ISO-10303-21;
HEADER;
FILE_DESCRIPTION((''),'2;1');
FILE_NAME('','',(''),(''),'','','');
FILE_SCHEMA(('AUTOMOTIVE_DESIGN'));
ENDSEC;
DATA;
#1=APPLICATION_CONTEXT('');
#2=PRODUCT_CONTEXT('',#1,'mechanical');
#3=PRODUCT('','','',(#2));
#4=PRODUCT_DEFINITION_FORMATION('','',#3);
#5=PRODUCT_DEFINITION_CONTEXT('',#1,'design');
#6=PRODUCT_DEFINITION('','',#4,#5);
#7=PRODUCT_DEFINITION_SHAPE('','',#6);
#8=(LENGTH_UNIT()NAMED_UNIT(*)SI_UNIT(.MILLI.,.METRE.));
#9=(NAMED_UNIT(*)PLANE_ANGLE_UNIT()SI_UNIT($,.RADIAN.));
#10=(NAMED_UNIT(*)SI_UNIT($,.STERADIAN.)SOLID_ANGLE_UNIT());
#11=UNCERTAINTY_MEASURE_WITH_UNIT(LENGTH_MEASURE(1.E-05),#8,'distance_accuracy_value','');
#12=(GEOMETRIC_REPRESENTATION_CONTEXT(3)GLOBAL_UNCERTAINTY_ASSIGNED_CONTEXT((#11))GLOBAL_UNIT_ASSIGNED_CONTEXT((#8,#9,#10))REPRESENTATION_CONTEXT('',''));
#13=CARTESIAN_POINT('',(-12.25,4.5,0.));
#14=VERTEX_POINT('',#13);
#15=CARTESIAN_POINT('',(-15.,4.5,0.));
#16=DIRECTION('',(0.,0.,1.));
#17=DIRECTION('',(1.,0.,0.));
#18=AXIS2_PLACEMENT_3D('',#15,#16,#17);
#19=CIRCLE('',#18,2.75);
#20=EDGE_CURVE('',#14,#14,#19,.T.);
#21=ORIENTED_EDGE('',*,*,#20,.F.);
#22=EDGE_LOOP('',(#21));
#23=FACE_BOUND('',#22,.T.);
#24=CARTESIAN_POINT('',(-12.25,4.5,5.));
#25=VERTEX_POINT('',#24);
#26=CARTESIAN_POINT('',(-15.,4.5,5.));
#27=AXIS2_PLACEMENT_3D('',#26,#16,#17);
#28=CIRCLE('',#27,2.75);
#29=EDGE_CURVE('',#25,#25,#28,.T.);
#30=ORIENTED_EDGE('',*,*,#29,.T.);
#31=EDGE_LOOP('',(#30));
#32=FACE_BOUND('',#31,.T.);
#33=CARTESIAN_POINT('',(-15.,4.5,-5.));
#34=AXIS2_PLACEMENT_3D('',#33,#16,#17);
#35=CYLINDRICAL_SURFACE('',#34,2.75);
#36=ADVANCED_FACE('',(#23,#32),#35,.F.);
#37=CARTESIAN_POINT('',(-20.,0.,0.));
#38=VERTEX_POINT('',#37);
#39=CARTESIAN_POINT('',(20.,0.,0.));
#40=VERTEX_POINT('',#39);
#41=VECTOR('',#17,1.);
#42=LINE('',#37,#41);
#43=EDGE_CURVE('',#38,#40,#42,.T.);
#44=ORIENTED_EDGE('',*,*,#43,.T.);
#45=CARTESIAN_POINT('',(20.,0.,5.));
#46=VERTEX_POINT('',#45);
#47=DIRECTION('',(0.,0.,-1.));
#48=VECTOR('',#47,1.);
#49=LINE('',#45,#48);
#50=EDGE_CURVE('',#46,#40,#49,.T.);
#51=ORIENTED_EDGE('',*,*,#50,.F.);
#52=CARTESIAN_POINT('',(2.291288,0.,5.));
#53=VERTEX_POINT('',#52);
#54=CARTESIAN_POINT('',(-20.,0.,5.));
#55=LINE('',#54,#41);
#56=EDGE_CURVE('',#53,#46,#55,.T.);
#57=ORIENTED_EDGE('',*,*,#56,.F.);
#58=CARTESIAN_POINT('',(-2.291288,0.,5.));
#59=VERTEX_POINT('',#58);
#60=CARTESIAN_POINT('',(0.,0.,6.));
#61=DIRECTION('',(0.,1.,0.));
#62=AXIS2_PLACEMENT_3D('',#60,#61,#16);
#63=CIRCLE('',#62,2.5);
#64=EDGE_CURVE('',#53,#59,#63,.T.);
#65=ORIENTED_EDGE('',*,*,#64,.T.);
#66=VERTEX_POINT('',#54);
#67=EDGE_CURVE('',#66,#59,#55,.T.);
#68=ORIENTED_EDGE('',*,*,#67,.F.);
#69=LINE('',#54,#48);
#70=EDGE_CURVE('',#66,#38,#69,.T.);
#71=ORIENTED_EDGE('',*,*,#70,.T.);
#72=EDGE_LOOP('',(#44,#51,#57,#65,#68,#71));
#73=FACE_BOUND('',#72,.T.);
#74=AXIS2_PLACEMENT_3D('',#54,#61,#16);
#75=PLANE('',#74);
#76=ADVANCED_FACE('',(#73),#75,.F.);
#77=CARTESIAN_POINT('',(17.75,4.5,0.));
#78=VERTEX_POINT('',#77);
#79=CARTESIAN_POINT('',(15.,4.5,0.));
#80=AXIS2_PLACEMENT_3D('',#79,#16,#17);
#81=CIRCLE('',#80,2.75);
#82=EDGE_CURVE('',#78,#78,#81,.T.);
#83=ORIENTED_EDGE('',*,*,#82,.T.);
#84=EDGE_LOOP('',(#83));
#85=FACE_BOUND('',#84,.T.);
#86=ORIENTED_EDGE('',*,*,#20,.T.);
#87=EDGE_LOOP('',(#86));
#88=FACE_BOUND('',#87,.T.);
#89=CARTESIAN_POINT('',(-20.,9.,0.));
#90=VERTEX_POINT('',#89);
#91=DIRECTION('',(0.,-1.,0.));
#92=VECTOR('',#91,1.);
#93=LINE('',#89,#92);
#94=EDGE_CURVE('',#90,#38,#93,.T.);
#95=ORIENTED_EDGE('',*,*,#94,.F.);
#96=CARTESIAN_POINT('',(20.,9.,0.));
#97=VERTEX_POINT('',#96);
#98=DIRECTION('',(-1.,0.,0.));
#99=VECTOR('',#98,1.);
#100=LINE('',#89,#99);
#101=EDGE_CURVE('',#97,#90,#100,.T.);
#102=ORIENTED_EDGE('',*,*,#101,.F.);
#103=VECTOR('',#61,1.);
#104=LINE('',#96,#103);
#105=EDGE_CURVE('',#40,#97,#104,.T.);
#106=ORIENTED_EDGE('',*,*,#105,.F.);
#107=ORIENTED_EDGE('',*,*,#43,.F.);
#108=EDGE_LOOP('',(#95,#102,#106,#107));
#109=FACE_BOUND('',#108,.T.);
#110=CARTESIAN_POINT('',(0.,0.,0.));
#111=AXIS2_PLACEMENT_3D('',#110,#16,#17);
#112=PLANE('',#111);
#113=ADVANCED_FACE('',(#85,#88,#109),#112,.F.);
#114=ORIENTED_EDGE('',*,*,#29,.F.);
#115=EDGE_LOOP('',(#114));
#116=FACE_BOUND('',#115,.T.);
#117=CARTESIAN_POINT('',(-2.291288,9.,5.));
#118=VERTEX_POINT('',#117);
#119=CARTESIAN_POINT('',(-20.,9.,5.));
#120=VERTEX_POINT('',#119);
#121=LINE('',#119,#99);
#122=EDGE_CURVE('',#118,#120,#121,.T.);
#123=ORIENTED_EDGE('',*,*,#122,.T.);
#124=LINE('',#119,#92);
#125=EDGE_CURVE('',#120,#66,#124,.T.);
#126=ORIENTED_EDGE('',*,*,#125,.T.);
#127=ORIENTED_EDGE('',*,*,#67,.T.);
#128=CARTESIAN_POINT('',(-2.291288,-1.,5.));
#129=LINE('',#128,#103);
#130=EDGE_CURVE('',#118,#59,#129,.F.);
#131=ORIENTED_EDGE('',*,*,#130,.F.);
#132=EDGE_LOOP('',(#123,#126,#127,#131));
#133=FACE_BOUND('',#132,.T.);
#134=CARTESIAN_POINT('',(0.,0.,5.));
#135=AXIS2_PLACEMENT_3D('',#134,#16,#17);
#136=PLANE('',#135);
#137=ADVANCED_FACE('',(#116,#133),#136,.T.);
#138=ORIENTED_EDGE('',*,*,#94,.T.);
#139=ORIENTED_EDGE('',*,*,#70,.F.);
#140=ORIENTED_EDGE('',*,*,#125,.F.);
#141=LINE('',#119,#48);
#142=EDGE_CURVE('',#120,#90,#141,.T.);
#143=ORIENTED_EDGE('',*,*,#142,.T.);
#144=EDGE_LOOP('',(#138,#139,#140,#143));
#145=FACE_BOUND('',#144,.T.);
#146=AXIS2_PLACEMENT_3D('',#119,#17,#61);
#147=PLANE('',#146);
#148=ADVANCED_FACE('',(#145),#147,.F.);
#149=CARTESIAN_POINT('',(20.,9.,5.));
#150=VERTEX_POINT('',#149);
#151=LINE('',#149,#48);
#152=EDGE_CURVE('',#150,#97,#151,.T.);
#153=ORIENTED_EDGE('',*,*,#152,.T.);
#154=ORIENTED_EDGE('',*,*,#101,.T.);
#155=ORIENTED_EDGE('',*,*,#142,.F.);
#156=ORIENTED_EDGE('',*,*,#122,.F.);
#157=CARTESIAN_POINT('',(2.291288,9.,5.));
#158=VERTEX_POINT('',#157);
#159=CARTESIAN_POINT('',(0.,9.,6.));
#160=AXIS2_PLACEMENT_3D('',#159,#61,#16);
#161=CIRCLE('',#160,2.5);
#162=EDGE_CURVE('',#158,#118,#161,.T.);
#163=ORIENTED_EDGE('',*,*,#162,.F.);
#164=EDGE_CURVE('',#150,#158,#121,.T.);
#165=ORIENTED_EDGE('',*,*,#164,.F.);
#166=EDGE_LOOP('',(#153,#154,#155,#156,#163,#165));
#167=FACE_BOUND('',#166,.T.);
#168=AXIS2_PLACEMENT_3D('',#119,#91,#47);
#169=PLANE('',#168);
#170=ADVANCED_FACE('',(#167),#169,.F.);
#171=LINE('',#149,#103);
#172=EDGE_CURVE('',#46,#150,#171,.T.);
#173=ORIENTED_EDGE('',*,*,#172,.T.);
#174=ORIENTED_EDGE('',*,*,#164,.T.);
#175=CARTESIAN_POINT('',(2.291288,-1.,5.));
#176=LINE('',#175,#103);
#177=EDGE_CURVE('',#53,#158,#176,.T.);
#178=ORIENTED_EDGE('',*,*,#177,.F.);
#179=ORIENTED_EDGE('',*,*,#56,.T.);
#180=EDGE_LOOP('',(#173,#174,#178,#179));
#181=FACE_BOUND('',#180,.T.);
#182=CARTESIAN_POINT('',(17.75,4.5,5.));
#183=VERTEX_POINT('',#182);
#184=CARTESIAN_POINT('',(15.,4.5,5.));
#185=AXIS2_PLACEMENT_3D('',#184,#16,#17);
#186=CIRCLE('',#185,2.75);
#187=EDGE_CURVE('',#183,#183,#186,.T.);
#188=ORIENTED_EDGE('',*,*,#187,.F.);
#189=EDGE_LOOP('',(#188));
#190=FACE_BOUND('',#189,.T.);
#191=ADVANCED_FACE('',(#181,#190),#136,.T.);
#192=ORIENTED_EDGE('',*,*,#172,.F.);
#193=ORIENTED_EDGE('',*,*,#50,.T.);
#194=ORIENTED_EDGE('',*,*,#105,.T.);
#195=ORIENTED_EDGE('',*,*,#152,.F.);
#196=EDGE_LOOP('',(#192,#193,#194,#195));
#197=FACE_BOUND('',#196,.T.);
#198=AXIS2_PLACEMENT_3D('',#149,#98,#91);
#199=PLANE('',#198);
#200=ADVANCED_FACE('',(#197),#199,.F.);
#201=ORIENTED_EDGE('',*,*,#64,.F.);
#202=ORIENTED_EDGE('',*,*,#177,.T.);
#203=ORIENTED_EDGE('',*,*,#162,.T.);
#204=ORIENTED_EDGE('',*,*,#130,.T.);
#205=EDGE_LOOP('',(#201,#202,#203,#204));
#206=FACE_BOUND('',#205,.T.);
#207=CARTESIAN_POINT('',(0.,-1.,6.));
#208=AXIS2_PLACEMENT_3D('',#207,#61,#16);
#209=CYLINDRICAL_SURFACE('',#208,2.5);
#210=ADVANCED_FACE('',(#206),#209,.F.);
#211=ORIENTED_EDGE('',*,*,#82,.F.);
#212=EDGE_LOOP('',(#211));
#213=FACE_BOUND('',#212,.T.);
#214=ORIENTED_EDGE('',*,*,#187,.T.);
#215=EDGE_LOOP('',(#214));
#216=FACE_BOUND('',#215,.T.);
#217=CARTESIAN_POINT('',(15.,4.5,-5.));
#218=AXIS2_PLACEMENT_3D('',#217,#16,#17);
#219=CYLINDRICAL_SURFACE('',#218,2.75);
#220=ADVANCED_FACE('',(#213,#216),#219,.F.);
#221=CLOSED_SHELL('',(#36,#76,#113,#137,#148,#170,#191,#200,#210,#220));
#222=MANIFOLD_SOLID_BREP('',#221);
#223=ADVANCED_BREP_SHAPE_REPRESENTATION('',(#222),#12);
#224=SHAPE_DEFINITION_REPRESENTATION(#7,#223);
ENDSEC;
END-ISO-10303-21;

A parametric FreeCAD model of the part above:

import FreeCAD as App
import Part
import Sketcher

doc = App.newDocument("Part")
params = doc.addObject("Spreadsheet::Sheet", "Params")
for row, (alias, value) in enumerate([
    ("sketch1_width", "40 mm"),
    ("sketch1_height", "9 mm"),
    ("pad1_length", "5 mm"),
    ("sketch2_diameter", "5.5 mm"),
    ("pocket1_length", "10 mm"),
    ("sketch3_diameter", "5 mm"),
    ("pocket2_length", "10 mm"),
], start=1):
    params.set(f"A{row}", alias)
    params.set(f"B{row}", "=" + value)
    params.setAlias(f"B{row}", alias)

body = doc.addObject("PartDesign::Body", "Body")

sketch1 = doc.addObject("Sketcher::SketchObject", "Sketch")
body.addObject(sketch1)
sketch1.AttachmentSupport = (doc.XY_Plane, [""])
sketch1.MapMode = "FlatFace"
sketch1.addGeometry(Part.LineSegment(App.Vector(-20, 9, 0), App.Vector(-20, 0, 0)), False)
sketch1.addGeometry(Part.LineSegment(App.Vector(-20, 0, 0), App.Vector(20, 0, 0)), False)
sketch1.addGeometry(Part.LineSegment(App.Vector(20, 0, 0), App.Vector(20, 9, 0)), False)
sketch1.addGeometry(Part.LineSegment(App.Vector(20, 9, 0), App.Vector(-20, 9, 0)), False)
sketch1.addConstraint(Sketcher.Constraint("Coincident", 0, 2, 1, 1))
sketch1.addConstraint(Sketcher.Constraint("Coincident", 1, 2, 2, 1))
sketch1.addConstraint(Sketcher.Constraint("Coincident", 2, 2, 3, 1))
sketch1.addConstraint(Sketcher.Constraint("Coincident", 3, 2, 0, 1))
sketch1.addConstraint(Sketcher.Constraint("Vertical", 0))
sketch1.addConstraint(Sketcher.Constraint("Horizontal", 1))
sketch1.addConstraint(Sketcher.Constraint("Vertical", 2))
sketch1.addConstraint(Sketcher.Constraint("Horizontal", 3))
sketch1.addConstraint(Sketcher.Constraint("Symmetric", 0, 2, 1, 2, -1, 1))
sketch1.addConstraint(Sketcher.Constraint("DistanceX", 1, 1, 1, 2, 40.0))
sketch1.addConstraint(Sketcher.Constraint("DistanceY", 0, 2, 0, 1, 9.0))
sketch1.setExpression("Constraints[9]", "Params.sketch1_width")
sketch1.setExpression("Constraints[10]", "Params.sketch1_height")
pad1 = doc.addObject("PartDesign::Pad", "Pad")
body.addObject(pad1)
pad1.Profile = sketch1
pad1.setExpression("Length", "Params.pad1_length")

sketch2 = doc.addObject("Sketcher::SketchObject", "Sketch001")
body.addObject(sketch2)
sketch2.AttachmentSupport = (doc.XY_Plane, [""])
sketch2.MapMode = "FlatFace"
sketch2.AttachmentOffset = App.Placement(App.Vector(0, 0, 5), App.Rotation())
sketch2.addGeometry(Part.Circle(App.Vector(15, 4.5, 0), App.Vector(0, 0, 1), 2.75), False)
sketch2.addGeometry(Part.Circle(App.Vector(-15, 4.5, 0), App.Vector(0, 0, 1), 2.75), False)
sketch2.addConstraint(Sketcher.Constraint("Equal", 0, 1))
sketch2.addConstraint(Sketcher.Constraint("Symmetric", 0, 3, 1, 3, -2))
sketch2.addConstraint(Sketcher.Constraint("Diameter", 0, 5.5))
sketch2.addConstraint(Sketcher.Constraint("DistanceX", -1, 1, 0, 3, 15.0))
sketch2.addConstraint(Sketcher.Constraint("DistanceY", -1, 1, 0, 3, 4.5))
sketch2.setExpression("Constraints[2]", "Params.sketch2_diameter")
pocket1 = doc.addObject("PartDesign::Pocket", "Pocket")
body.addObject(pocket1)
pocket1.Profile = sketch2
pocket1.setExpression("Length", "Params.pocket1_length")

sketch3 = doc.addObject("Sketcher::SketchObject", "Sketch002")
body.addObject(sketch3)
sketch3.AttachmentSupport = (doc.XZ_Plane, [""])
sketch3.MapMode = "FlatFace"
sketch3.AttachmentOffset = App.Placement(App.Vector(0, 0, -9), App.Rotation())
sketch3.addGeometry(Part.Circle(App.Vector(0, 6, 0), App.Vector(0, 0, 1), 2.5), False)
sketch3.addConstraint(Sketcher.Constraint("PointOnObject", 0, 3, -2))
sketch3.addConstraint(Sketcher.Constraint("Diameter", 0, 5.0))
sketch3.addConstraint(Sketcher.Constraint("DistanceY", -1, 1, 0, 3, 6.0))
sketch3.setExpression("Constraints[1]", "Params.sketch3_diameter")
pocket2 = doc.addObject("PartDesign::Pocket", "Pocket001")
body.addObject(pocket2)
pocket2.Profile = sketch3
pocket2.setExpression("Length", "Params.pocket2_length")
pocket2.Reversed = True

doc.recompute()
